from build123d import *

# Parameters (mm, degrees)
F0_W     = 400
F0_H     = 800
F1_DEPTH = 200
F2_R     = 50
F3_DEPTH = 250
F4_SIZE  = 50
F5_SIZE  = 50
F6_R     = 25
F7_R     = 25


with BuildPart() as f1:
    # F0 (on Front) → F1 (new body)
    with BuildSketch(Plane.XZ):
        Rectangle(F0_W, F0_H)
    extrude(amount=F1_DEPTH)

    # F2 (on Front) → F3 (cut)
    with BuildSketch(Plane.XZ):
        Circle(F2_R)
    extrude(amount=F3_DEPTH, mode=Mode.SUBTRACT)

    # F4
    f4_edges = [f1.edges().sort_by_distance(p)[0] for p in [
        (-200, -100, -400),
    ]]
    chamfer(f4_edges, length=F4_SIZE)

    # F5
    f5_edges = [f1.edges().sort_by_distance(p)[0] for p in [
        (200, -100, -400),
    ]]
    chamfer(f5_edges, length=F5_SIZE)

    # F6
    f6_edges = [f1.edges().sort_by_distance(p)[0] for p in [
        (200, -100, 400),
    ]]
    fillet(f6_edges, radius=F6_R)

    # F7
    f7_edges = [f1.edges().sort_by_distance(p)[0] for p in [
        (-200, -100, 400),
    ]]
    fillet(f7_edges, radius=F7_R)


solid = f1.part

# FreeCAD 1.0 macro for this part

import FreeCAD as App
import Part
import Sketcher


def edges_at(feature, points):
    """Names of the edges that pass closest to the given points."""
    edges = feature.Shape.Edges
    near = lambda p: min(range(len(edges)), key=lambda i: edges[i].distToShape(Part.Vertex(*p))[0])
    return sorted({f"Edge{near(p) + 1}" for p in points})

doc = App.newDocument("Part")
params = doc.addObject("Spreadsheet::Sheet", "Params")
for row, (alias, value) in enumerate([
    ("sketch1_width", "400 mm"),
    ("sketch1_height", "800 mm"),
    ("pad1_length", "200 mm"),
    ("sketch2_diameter", "100 mm"),
    ("pocket1_length", "250 mm"),
    ("chamfer_size", "50 mm"),
    ("chamfer2_size", "50 mm"),
    ("fillet_radius", "25 mm"),
    ("fillet2_radius", "25 mm"),
], start=1):
    params.set(f"A{row}", alias)
    params.set(f"B{row}", "=" + value)
    params.setAlias(f"B{row}", alias)

body = doc.addObject("PartDesign::Body", "Body")

# Sketch on XZ plane
sketch1 = body.newObject("Sketcher::SketchObject", "Sketch")
sketch1.AttachmentSupport = (doc.getObject("XZ_Plane"), [""])
sketch1.MapMode = "FlatFace"
sketch1.addGeometry(Part.LineSegment(App.Vector(-200, 400, 0), App.Vector(-200, -400, 0)), False)
sketch1.addGeometry(Part.LineSegment(App.Vector(-200, -400, 0), App.Vector(200, -400, 0)), False)
sketch1.addGeometry(Part.LineSegment(App.Vector(200, -400, 0), App.Vector(200, 400, 0)), False)
sketch1.addGeometry(Part.LineSegment(App.Vector(200, 400, 0), App.Vector(-200, 400, 0)), False)
sketch1.addConstraint(Sketcher.Constraint("Coincident", 0, 2, 1, 1))
sketch1.addConstraint(Sketcher.Constraint("Coincident", 1, 2, 2, 1))
sketch1.addConstraint(Sketcher.Constraint("Coincident", 2, 2, 3, 1))
sketch1.addConstraint(Sketcher.Constraint("Coincident", 3, 2, 0, 1))
sketch1.addConstraint(Sketcher.Constraint("Vertical", 0))
sketch1.addConstraint(Sketcher.Constraint("Horizontal", 1))
sketch1.addConstraint(Sketcher.Constraint("Vertical", 2))
sketch1.addConstraint(Sketcher.Constraint("Horizontal", 3))
sketch1.addConstraint(Sketcher.Constraint("Symmetric", 0, 2, 2, 2, -1, 1))
sketch1.addConstraint(Sketcher.Constraint("DistanceX", 1, 1, 1, 2, 400.0))
sketch1.addConstraint(Sketcher.Constraint("DistanceY", 0, 2, 0, 1, 800.0))
sketch1.setExpression("Constraints[9]", "Params.sketch1_width")
sketch1.setExpression("Constraints[10]", "Params.sketch1_height")
pad1 = body.newObject("PartDesign::Pad", "Pad")
pad1.Profile = sketch1
pad1.setExpression("Length", "Params.pad1_length")

# Sketch on XZ plane
sketch2 = body.newObject("Sketcher::SketchObject", "Sketch001")
sketch2.AttachmentSupport = (doc.getObject("XZ_Plane"), [""])
sketch2.MapMode = "FlatFace"
sketch2.addGeometry(Part.Circle(App.Vector(0, 0, 0), App.Vector(0, 0, 1), 50), False)
sketch2.addConstraint(Sketcher.Constraint("Coincident", 0, 3, -1, 1))
sketch2.addConstraint(Sketcher.Constraint("Diameter", 0, 100.0))
sketch2.setExpression("Constraints[1]", "Params.sketch2_diameter")
pocket1 = body.newObject("PartDesign::Pocket", "Pocket")
pocket1.Profile = sketch2
pocket1.setExpression("Length", "Params.pocket1_length")
pocket1.Reversed = True
doc.recompute()

chamfer = body.newObject("PartDesign::Chamfer", "Chamfer")
chamfer.Base = (pocket1, edges_at(pocket1, [(-200, -100, -400)]))
chamfer.setExpression("Size", "Params.chamfer_size")
doc.recompute()

chamfer2 = body.newObject("PartDesign::Chamfer", "Chamfer001")
chamfer2.Base = (chamfer, edges_at(chamfer, [(200, -100, -400)]))
chamfer2.setExpression("Size", "Params.chamfer2_size")
doc.recompute()

fillet = body.newObject("PartDesign::Fillet", "Fillet")
fillet.Base = (chamfer2, edges_at(chamfer2, [(200, -100, 400)]))
fillet.setExpression("Radius", "Params.fillet_radius")
doc.recompute()

fillet2 = body.newObject("PartDesign::Fillet", "Fillet001")
fillet2.Base = (fillet, edges_at(fillet, [(-200, -100, 400)]))
fillet2.setExpression("Radius", "Params.fillet2_radius")

doc.recompute()
